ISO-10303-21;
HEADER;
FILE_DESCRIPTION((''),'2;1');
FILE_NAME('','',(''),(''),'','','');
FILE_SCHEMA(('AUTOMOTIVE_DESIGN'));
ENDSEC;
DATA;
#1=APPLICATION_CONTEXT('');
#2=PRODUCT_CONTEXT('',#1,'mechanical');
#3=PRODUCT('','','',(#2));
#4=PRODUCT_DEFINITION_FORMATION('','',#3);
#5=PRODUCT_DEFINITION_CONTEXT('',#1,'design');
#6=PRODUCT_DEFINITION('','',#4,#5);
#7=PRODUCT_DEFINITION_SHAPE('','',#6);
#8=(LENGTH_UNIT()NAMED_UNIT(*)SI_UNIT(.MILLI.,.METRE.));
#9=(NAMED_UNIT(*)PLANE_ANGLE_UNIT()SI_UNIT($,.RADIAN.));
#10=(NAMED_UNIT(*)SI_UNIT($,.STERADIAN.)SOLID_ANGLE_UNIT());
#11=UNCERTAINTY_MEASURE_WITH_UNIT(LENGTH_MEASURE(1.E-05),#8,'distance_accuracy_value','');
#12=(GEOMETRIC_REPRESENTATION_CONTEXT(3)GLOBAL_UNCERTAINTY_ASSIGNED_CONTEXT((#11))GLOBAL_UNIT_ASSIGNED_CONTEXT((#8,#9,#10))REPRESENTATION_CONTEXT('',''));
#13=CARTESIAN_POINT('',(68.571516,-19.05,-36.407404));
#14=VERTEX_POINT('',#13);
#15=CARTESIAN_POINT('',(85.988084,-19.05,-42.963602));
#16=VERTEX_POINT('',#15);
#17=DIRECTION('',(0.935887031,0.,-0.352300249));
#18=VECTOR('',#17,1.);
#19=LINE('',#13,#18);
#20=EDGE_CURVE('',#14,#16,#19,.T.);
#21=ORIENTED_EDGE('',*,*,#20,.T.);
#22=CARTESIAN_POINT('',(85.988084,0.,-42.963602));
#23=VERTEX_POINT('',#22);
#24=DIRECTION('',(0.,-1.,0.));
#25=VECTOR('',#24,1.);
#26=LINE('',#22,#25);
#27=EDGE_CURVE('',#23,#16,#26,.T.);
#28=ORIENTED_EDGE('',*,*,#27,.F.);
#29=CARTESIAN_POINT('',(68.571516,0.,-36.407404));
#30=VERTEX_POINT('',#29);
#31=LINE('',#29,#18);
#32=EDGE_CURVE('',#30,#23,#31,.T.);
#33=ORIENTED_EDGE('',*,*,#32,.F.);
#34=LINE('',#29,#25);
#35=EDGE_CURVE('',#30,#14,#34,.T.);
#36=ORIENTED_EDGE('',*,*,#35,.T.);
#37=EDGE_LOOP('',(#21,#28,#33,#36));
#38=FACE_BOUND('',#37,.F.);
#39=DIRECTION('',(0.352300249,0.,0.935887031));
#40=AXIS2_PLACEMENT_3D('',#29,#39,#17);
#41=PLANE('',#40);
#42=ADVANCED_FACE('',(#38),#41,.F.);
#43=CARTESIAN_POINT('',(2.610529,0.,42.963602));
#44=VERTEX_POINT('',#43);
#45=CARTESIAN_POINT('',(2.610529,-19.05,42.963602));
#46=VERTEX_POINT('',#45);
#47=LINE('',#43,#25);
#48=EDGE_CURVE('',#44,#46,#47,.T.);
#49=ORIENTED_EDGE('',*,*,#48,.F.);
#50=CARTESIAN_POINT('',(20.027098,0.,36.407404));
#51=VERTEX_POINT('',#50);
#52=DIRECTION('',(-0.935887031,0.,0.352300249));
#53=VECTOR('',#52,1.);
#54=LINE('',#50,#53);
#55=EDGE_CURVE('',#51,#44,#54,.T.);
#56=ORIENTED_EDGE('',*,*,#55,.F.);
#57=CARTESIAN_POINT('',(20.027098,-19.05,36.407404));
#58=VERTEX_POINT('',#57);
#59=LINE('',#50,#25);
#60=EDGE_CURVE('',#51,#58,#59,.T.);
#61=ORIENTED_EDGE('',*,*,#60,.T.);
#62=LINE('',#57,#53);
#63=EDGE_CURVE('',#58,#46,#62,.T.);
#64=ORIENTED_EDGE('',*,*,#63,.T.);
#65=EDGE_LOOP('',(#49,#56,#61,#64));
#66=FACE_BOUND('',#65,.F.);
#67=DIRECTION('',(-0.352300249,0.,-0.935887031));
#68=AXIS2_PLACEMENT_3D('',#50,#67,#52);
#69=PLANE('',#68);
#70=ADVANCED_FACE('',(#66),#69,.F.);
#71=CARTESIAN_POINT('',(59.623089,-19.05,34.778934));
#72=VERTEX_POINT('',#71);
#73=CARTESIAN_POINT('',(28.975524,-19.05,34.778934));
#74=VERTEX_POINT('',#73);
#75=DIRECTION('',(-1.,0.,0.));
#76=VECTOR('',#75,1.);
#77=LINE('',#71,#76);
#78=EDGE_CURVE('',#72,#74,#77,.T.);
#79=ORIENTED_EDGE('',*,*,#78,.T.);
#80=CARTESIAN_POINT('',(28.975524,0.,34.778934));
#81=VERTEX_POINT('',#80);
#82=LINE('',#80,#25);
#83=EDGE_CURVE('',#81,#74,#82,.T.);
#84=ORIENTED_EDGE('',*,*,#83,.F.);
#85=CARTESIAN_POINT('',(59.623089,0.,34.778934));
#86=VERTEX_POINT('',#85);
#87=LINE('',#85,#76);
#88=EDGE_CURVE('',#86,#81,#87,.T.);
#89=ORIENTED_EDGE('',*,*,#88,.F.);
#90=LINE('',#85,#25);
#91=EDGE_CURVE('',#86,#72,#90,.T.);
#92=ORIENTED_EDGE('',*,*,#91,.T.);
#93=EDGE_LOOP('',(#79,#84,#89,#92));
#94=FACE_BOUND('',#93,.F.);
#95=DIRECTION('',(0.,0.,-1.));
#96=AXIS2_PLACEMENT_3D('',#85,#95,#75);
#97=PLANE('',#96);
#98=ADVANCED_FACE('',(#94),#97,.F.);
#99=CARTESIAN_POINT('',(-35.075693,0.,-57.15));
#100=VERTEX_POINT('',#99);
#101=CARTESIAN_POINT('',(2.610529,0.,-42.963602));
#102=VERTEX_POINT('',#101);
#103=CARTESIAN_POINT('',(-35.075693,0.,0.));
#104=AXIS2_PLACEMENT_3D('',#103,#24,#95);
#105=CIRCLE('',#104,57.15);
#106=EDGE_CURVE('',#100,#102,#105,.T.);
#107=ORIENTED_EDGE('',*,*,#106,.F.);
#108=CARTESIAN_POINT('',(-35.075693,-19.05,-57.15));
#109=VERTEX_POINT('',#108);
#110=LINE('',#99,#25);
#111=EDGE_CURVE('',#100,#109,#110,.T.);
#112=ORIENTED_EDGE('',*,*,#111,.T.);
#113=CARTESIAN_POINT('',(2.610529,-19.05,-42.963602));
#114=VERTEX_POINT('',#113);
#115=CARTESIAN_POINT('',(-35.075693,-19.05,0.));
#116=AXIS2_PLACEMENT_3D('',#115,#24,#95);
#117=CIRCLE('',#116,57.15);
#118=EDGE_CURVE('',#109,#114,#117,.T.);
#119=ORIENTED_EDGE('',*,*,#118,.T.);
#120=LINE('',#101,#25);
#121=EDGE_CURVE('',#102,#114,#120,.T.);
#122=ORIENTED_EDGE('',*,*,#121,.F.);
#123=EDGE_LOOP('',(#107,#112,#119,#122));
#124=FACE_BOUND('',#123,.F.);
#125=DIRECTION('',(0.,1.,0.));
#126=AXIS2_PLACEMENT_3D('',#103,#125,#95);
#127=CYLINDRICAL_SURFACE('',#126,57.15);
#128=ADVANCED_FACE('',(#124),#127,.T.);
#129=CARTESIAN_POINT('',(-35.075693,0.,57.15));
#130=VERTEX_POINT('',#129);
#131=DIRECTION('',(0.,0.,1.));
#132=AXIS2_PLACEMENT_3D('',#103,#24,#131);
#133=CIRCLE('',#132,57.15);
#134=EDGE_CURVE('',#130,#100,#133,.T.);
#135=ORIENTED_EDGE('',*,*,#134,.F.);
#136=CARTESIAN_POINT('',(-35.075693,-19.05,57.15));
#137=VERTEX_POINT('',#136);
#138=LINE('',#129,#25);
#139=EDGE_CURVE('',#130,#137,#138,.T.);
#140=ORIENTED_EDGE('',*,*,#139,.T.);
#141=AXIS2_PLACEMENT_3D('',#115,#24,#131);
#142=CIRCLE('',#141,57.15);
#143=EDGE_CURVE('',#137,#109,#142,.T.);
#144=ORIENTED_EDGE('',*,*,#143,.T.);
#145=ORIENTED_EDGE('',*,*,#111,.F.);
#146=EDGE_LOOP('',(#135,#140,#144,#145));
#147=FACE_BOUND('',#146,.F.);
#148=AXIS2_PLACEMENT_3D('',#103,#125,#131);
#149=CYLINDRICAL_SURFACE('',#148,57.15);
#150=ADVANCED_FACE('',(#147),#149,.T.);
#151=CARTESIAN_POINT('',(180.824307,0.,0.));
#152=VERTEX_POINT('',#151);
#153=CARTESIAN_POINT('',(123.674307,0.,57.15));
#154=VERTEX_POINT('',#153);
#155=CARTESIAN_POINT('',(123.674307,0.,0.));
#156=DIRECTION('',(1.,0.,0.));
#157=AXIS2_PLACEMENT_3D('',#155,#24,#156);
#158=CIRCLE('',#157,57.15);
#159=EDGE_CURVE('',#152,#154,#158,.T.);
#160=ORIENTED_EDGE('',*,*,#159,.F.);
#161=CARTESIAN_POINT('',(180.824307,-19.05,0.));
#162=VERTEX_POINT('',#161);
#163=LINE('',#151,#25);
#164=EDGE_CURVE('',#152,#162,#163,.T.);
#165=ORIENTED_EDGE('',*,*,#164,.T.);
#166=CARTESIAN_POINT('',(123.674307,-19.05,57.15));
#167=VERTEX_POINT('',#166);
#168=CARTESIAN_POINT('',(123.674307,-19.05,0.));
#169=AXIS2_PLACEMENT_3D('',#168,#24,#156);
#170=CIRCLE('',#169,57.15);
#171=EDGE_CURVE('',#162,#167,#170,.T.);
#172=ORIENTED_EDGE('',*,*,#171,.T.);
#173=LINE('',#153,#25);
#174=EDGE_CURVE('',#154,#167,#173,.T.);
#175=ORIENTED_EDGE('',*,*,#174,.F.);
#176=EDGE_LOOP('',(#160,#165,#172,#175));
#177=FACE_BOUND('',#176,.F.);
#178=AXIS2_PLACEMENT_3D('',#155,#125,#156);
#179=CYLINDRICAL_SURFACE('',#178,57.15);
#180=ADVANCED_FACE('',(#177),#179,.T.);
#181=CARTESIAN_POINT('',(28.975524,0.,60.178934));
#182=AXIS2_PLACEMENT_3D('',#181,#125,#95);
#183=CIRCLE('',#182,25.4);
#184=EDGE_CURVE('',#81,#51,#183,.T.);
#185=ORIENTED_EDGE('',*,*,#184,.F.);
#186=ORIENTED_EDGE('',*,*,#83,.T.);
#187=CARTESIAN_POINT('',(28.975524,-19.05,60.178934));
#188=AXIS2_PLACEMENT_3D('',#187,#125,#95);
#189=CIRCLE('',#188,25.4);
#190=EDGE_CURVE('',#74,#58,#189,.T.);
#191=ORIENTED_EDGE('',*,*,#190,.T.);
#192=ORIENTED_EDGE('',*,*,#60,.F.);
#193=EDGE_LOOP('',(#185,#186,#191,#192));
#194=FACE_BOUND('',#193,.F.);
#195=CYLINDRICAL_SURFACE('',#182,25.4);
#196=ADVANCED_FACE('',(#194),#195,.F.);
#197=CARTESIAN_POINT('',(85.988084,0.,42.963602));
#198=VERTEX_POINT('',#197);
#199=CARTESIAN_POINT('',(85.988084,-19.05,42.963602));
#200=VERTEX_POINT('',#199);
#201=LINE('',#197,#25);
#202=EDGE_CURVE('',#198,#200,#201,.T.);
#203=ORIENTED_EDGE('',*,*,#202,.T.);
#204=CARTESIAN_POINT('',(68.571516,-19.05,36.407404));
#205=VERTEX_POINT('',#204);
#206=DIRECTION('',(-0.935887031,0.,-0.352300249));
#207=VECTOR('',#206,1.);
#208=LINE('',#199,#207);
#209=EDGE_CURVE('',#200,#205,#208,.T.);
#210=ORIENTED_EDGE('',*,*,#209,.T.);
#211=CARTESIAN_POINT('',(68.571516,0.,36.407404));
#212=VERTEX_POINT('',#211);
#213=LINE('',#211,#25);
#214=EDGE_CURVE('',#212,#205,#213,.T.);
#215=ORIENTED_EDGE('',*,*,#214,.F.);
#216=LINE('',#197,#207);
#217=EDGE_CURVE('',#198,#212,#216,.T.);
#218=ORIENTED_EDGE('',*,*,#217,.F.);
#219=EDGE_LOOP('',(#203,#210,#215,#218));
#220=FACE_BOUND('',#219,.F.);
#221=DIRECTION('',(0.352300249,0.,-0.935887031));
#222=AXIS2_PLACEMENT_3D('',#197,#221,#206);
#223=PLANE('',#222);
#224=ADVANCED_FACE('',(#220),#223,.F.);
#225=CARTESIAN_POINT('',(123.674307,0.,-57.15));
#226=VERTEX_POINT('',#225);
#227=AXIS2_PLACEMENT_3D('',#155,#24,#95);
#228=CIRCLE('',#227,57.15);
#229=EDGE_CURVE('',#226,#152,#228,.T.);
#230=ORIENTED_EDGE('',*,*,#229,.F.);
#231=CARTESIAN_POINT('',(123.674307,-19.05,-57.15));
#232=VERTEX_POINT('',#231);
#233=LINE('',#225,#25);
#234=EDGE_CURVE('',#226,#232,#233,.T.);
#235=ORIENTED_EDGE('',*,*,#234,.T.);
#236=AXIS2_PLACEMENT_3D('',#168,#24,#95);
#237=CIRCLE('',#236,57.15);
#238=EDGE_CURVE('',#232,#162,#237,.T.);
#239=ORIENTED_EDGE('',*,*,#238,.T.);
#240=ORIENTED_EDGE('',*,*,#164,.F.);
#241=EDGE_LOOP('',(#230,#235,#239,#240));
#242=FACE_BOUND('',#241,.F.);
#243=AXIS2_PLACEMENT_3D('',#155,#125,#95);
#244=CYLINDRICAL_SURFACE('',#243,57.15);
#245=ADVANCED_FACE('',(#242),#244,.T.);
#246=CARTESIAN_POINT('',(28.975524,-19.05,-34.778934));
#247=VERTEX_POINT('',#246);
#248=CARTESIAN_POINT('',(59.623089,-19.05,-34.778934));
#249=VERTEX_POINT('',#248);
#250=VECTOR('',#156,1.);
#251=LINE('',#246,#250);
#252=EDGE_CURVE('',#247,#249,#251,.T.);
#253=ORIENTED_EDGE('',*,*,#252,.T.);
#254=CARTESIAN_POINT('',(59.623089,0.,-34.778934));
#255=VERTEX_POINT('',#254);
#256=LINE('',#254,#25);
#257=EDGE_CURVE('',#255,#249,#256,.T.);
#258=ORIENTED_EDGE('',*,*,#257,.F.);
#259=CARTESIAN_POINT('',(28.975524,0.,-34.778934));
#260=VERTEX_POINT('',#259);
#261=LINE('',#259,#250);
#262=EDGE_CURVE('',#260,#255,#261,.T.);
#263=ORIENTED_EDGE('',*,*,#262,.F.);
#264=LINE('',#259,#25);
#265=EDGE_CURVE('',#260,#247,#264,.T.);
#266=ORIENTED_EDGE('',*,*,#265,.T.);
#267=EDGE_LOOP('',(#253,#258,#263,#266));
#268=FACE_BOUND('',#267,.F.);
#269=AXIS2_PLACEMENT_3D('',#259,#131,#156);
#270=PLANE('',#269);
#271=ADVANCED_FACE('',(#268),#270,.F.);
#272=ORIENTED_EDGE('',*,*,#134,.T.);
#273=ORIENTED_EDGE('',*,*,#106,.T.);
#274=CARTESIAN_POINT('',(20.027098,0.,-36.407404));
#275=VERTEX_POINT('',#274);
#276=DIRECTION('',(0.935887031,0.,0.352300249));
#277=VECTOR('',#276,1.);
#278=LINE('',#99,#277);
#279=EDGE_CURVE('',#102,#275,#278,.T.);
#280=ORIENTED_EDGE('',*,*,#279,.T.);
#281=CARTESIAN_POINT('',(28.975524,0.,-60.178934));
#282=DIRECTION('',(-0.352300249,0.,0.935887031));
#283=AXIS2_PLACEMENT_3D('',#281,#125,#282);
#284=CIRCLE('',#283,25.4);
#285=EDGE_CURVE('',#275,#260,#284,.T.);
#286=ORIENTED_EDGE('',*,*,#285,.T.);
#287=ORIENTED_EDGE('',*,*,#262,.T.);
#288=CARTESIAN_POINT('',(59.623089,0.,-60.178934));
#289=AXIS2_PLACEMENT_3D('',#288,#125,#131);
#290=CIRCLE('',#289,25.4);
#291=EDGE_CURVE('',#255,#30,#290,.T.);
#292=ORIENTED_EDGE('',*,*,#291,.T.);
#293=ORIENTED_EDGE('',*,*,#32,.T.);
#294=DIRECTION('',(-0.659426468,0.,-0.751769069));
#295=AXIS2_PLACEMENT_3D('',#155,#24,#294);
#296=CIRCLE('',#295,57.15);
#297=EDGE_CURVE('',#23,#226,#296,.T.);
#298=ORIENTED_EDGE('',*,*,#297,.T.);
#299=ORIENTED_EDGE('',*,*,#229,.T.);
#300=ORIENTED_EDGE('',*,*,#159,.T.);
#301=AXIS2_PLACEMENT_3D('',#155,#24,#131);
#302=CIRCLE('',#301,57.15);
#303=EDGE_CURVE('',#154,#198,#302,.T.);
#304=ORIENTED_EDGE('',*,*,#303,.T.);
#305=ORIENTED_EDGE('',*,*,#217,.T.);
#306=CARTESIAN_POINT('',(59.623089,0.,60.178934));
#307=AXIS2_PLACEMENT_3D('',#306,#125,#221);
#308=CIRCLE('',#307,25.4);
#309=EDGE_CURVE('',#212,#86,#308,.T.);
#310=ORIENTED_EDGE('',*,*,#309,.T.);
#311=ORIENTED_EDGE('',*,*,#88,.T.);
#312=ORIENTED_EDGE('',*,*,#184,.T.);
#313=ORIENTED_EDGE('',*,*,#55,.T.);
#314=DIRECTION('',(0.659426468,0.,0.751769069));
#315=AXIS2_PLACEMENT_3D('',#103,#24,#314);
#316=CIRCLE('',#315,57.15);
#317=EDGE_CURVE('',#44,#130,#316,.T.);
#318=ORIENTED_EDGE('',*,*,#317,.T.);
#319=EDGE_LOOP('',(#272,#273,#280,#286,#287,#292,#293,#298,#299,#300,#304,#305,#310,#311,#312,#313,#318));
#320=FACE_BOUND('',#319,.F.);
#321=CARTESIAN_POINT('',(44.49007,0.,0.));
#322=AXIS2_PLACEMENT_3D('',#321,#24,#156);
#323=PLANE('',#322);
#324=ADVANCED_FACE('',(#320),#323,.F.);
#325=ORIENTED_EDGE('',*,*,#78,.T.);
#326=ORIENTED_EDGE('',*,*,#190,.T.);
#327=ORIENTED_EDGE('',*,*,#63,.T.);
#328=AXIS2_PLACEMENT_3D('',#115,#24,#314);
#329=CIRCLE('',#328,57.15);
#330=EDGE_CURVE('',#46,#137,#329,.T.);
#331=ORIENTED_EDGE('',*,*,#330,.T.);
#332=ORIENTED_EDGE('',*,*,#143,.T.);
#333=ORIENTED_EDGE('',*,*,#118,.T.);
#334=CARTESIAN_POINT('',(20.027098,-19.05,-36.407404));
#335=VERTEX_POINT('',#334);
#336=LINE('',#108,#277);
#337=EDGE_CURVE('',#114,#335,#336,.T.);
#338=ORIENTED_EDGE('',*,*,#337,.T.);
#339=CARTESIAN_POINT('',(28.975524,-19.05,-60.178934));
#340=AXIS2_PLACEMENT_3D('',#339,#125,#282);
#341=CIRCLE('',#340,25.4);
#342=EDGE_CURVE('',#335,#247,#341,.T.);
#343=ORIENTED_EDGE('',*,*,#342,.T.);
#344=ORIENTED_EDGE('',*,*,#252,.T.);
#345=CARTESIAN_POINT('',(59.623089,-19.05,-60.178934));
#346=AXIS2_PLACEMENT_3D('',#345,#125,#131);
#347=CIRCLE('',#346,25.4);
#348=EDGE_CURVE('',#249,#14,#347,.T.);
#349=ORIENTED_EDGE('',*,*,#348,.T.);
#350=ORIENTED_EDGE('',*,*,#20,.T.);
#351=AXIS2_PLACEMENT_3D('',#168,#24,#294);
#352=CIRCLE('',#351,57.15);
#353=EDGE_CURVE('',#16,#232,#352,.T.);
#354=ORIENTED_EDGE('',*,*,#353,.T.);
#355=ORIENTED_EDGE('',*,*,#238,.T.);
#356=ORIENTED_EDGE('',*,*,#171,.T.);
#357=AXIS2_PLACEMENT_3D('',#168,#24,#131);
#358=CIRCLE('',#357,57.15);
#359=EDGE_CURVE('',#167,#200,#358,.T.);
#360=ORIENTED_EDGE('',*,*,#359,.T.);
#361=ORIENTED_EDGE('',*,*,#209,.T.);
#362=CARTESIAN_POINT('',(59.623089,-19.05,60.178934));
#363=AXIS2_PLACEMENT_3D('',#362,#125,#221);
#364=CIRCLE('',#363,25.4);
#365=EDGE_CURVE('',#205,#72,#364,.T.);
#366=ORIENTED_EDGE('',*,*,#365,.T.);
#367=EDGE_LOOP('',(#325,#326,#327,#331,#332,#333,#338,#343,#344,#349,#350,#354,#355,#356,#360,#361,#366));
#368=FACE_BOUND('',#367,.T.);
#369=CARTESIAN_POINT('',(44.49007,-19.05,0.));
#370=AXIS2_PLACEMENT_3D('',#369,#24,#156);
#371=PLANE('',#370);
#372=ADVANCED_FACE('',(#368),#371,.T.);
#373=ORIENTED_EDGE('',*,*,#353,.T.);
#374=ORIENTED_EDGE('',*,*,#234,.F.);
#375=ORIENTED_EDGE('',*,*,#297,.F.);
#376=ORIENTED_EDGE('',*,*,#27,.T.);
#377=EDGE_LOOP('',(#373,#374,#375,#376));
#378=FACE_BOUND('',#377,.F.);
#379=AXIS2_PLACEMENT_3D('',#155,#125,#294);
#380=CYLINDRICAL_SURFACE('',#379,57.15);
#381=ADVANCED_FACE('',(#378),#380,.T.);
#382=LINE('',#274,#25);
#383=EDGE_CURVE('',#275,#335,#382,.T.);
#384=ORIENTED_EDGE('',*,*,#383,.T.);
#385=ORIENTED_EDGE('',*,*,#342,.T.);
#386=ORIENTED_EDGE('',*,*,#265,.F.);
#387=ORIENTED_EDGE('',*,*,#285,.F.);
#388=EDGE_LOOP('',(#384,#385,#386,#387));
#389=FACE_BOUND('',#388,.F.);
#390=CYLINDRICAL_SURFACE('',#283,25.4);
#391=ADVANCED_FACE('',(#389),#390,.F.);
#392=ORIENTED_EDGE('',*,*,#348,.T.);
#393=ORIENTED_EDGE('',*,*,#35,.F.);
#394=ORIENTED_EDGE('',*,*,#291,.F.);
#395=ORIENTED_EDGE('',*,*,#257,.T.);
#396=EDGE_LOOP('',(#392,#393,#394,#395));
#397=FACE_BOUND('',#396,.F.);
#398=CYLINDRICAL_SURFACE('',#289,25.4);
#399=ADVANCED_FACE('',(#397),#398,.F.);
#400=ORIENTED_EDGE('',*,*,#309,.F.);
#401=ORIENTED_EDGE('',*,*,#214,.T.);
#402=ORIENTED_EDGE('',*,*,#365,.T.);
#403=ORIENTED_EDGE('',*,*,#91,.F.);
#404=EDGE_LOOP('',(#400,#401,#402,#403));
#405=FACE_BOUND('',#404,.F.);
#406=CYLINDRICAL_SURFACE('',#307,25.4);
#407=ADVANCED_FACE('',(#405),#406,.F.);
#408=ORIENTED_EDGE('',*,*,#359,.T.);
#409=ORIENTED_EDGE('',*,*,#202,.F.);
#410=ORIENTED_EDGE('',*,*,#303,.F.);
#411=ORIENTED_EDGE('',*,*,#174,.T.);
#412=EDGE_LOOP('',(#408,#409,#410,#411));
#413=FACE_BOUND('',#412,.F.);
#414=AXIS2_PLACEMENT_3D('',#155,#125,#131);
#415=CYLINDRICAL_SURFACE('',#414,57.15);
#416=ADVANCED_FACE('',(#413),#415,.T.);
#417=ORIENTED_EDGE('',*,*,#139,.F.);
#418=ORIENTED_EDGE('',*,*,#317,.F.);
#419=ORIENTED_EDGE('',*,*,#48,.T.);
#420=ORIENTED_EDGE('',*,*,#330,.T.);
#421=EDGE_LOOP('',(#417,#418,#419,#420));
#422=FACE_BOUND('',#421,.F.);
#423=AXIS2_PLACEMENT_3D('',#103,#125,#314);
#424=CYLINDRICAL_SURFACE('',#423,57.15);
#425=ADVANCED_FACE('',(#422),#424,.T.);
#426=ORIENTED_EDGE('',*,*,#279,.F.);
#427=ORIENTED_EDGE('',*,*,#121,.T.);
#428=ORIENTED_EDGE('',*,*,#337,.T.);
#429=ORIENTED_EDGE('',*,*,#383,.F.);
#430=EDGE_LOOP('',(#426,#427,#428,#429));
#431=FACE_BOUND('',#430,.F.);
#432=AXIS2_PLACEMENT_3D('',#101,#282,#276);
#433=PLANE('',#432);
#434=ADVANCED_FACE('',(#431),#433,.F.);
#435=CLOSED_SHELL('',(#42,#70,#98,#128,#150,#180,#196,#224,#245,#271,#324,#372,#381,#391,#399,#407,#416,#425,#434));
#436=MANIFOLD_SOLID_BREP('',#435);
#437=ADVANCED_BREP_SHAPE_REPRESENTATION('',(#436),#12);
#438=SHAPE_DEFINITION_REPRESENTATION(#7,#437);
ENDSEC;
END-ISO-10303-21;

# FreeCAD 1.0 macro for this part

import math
import FreeCAD as App
import Part
import Sketcher
from FreeCAD import Vector
Q = App.Units.Quantity

doc = App.newDocument("Part")
body = doc.addObject("PartDesign::Body", "Body")

sketch1 = body.newObject("Sketcher::SketchObject", "Sketch")
sketch1.AttachmentSupport = (doc.getObject("XZ_Plane"), [""])
sketch1.MapMode = "FlatFace"
sketch1.addGeometry([
    Part.LineSegment(Vector(20, 36, 0), Vector(3, 43, 0)),
    Part.ArcOfCircle(Part.Circle(Vector(-35, 0, 0), Vector(0, 0, 1), 57), math.radians(49), math.radians(90)),
    Part.ArcOfCircle(Part.Circle(Vector(-35, 0, 0), Vector(0, 0, 1), 57), math.radians(90), math.radians(270)),
    Part.ArcOfCircle(Part.Circle(Vector(-35, 0, 0), Vector(0, 0, 1), 57), math.radians(-90), math.radians(-49)),
    Part.LineSegment(Vector(3, -43, 0), Vector(20, -36, 0)),
    Part.ArcOfCircle(Part.Circle(Vector(29, -60, 0), Vector(0, 0, 1), 25), math.radians(90), math.radians(111)),
    Part.LineSegment(Vector(29, -35, 0), Vector(60, -35, 0)),
    Part.ArcOfCircle(Part.Circle(Vector(60, -60, 0), Vector(0, 0, 1), 25), math.radians(69), math.radians(90)),
    Part.LineSegment(Vector(69, -36, 0), Vector(86, -43, 0)),
    Part.ArcOfCircle(Part.Circle(Vector(124, 0, 0), Vector(0, 0, 1), 57), math.radians(-131), math.radians(-90)),
    Part.ArcOfCircle(Part.Circle(Vector(124, 0, 0), Vector(0, 0, 1), 57), math.radians(-90), math.radians(0)),
    Part.ArcOfCircle(Part.Circle(Vector(124, 0, 0), Vector(0, 0, 1), 57), math.radians(0), math.radians(90)),
    Part.ArcOfCircle(Part.Circle(Vector(124, 0, 0), Vector(0, 0, 1), 57), math.radians(90), math.radians(131)),
    Part.LineSegment(Vector(86, 43, 0), Vector(69, 36, 0)),
    Part.ArcOfCircle(Part.Circle(Vector(60, 60, 0), Vector(0, 0, 1), 25), math.radians(-90), math.radians(-69)),
    Part.LineSegment(Vector(60, 35, 0), Vector(29, 35, 0)),
    Part.ArcOfCircle(Part.Circle(Vector(29, 60, 0), Vector(0, 0, 1), 25), math.radians(-111), math.radians(-90)),
], False)
sketch1.addConstraint([
    Sketcher.Constraint("Coincident", 0, 2, 1, 1),
    Sketcher.Constraint("Tangent", 1, 2, 2, 1),
    Sketcher.Constraint("Tangent", 2, 2, 3, 1),
    Sketcher.Constraint("Coincident", 3, 2, 4, 1),
    Sketcher.Constraint("Tangent", 4, 2, 5, 2),
    Sketcher.Constraint("Tangent", 5, 1, 6, 1),
    Sketcher.Constraint("Tangent", 6, 2, 7, 2),
    Sketcher.Constraint("Tangent", 7, 1, 8, 1),
    Sketcher.Constraint("Coincident", 8, 2, 9, 1),
    Sketcher.Constraint("Tangent", 9, 2, 10, 1),
    Sketcher.Constraint("Tangent", 10, 2, 11, 1),
    Sketcher.Constraint("Tangent", 11, 2, 12, 1),
    Sketcher.Constraint("Coincident", 12, 2, 13, 1),
    Sketcher.Constraint("Tangent", 13, 2, 14, 2),
    Sketcher.Constraint("Tangent", 14, 1, 15, 1),
    Sketcher.Constraint("Tangent", 15, 2, 16, 2),
    Sketcher.Constraint("Tangent", 16, 1, 0, 1),
    Sketcher.Constraint("Horizontal", 6),
    Sketcher.Constraint("Horizontal", 15),
    Sketcher.Constraint("Coincident", 11, 3, 9, 3),
    Sketcher.Constraint("Equal", 1, 2),
    Sketcher.Constraint("Equal", 2, 3),
    Sketcher.Constraint("Equal", 5, 7),
    Sketcher.Constraint("Equal", 3, 9),
    Sketcher.Constraint("Equal", 11, 12),
    Sketcher.Constraint("Equal", 7, 14),
    Sketcher.Constraint("Equal", 14, 16),
    Sketcher.Constraint("Symmetric", 7, 3, 14, 3, -1),
    Sketcher.Constraint("Symmetric", 1, 2, 2, 2, -1),
    Sketcher.Constraint("Symmetric", 9, 2, 11, 2, -1),
    Sketcher.Constraint("Symmetric", 4, 2, 16, 1, -1),
    Sketcher.Constraint("PointOnObject", 10, 2, -1),
    Sketcher.Constraint("Parallel", 0, 8),
    Sketcher.Constraint("Parallel", 4, 13),
    Sketcher.Constraint("Horizontal", 3, 2, 8, 2),
    Sketcher.Constraint("Vertical", 3, 3, 1, 2),
    Sketcher.Constraint("Vertical", 12, 3, 9, 2),
    Sketcher.Constraint("Radius", 5, Q("1 in")),
    Sketcher.Constraint("Radius", 1, Q("2.25 in")),
    Sketcher.Constraint("DistanceX", 1, 3, 9, 3, Q("6.25 in")),
    Sketcher.Constraint("DistanceY", 3, 2, 4, 2, 6.556199),
    Sketcher.Constraint("Distance", 0, 18.609691),
    Sketcher.Constraint("DistanceX", 6, 1, 6, 2, 30.647566),
    Sketcher.Constraint("DistanceX", -1, 1, 7, 3, 59.623089),
])
pad1 = body.newObject("PartDesign::Pad", "Pad")
pad1.Profile = sketch1
pad1.Length = Q("0.75 in")

doc.recompute()
